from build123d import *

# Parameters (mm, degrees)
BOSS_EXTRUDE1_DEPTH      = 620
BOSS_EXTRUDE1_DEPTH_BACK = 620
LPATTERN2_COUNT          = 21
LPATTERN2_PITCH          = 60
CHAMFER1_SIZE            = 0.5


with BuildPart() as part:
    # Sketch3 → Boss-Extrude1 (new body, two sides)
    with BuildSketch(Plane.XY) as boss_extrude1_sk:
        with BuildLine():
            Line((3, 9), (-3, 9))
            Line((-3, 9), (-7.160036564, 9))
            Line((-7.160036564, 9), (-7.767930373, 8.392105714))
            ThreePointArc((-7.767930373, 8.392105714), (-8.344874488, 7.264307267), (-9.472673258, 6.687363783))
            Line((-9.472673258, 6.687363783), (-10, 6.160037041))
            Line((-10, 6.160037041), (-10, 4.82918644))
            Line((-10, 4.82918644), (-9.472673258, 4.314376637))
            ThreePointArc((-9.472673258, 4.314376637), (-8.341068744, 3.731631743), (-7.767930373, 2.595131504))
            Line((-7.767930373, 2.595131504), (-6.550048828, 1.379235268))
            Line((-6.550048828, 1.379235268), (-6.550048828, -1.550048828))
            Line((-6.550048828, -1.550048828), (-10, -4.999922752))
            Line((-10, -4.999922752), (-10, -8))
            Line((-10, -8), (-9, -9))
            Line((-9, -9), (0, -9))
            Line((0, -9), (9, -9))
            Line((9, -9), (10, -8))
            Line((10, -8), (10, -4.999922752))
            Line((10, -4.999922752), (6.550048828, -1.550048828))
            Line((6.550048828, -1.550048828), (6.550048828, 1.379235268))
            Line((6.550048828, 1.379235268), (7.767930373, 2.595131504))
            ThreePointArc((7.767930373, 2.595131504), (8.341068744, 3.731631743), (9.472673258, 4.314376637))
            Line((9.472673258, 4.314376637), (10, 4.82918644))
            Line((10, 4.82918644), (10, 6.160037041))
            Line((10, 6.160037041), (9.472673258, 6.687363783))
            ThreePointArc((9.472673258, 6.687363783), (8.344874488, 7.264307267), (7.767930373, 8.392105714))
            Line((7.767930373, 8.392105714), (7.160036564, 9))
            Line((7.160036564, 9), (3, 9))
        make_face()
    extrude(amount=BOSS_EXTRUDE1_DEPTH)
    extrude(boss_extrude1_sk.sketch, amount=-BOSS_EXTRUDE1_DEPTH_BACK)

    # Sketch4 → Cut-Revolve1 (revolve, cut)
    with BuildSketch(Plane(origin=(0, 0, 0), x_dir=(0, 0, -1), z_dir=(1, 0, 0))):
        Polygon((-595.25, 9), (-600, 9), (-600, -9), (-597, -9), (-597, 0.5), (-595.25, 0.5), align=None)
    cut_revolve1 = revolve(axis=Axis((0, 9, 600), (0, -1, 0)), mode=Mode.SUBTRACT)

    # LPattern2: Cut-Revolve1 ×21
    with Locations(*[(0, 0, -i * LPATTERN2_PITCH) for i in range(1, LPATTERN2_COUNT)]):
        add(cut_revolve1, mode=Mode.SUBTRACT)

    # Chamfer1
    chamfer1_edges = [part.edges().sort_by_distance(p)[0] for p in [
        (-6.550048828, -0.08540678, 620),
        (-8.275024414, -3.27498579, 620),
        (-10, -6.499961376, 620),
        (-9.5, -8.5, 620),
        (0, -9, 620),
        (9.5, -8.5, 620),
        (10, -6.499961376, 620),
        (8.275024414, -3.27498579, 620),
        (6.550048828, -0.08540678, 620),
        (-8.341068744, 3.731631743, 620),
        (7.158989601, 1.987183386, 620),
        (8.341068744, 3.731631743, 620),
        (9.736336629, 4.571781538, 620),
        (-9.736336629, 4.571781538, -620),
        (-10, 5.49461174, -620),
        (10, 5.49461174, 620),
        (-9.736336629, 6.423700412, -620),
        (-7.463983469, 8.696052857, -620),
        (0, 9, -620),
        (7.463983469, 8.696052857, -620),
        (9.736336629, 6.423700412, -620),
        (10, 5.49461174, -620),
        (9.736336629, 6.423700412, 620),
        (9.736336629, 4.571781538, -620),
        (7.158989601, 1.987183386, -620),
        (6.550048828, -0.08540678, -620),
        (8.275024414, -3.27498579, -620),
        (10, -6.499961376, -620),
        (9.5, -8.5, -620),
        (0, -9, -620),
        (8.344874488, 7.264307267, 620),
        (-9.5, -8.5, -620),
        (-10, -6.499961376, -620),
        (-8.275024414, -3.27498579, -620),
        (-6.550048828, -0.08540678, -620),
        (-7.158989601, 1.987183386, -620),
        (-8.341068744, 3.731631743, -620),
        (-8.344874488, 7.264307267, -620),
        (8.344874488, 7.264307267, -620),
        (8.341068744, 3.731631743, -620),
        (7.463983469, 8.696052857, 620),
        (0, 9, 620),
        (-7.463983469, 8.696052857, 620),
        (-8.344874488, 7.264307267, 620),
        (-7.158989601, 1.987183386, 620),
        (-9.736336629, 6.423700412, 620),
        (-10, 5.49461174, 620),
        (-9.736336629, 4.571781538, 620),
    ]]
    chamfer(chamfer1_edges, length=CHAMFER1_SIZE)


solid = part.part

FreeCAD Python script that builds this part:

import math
import FreeCAD as App
import Part
import Sketcher
Q = App.Units.Quantity


def edges_at(feature, points):
    """Names of the edges that pass closest to the given points."""
    edges = feature.Shape.Edges
    near = lambda p: min(range(len(edges)), key=lambda i: edges[i].distToShape(Part.Vertex(*p))[0])
    return sorted({f"Edge{near(p) + 1}" for p in points})

doc = App.newDocument("Part")
body = doc.addObject("PartDesign::Body", "Body")

sketch1 = doc.addObject("Sketcher::SketchObject", "Sketch")
body.addObject(sketch1)
sketch1.AttachmentSupport = (doc.XY_Plane, [""])
sketch1.MapMode = "FlatFace"
sketch1.addGeometry(Part.LineSegment(App.Vector(-7.2, 9, 0), App.Vector(-7.8, 8.4, 0)), False)
sketch1.addGeometry(Part.ArcOfCircle(Part.Circle(App.Vector(-9.8, 8.7, 0), App.Vector(0, 0, 1), 2.1), math.radians(-81), math.radians(-9)), False)
sketch1.addGeometry(Part.LineSegment(App.Vector(-9.5, 6.7, 0), App.Vector(-10, 6.2, 0)), False)
sketch1.addGeometry(Part.LineSegment(App.Vector(-10, 6.2, 0), App.Vector(-10, 4.8, 0)), False)
sketch1.addGeometry(Part.LineSegment(App.Vector(-10, 4.8, 0), App.Vector(-9.5, 4.3, 0)), False)
sketch1.addGeometry(Part.ArcOfCircle(Part.Circle(App.Vector(-9.8, 2.3, 0), App.Vector(0, 0, 1), 2.1), math.radians(9), math.radians(81)), False)
sketch1.addGeometry(Part.LineSegment(App.Vector(-7.8, 2.6, 0), App.Vector(-6.6, 1.4, 0)), False)
sketch1.addGeometry(Part.LineSegment(App.Vector(-6.6, 1.4, 0), App.Vector(-6.6, -1.6, 0)), False)
sketch1.addGeometry(Part.LineSegment(App.Vector(-6.6, -1.6, 0), App.Vector(-10, -5, 0)), False)
sketch1.addGeometry(Part.LineSegment(App.Vector(-10, -5, 0), App.Vector(-10, -8, 0)), False)
sketch1.addGeometry(Part.LineSegment(App.Vector(-10, -8, 0), App.Vector(-9, -9, 0)), False)
sketch1.addGeometry(Part.LineSegment(App.Vector(-9, -9, 0), App.Vector(9, -9, 0)), False)
sketch1.addGeometry(Part.LineSegment(App.Vector(9, -9, 0), App.Vector(10, -8, 0)), False)
sketch1.addGeometry(Part.LineSegment(App.Vector(10, -8, 0), App.Vector(10, -5, 0)), False)
sketch1.addGeometry(Part.LineSegment(App.Vector(10, -5, 0), App.Vector(6.6, -1.6, 0)), False)
sketch1.addGeometry(Part.LineSegment(App.Vector(6.6, -1.6, 0), App.Vector(6.6, 1.4, 0)), False)
sketch1.addGeometry(Part.LineSegment(App.Vector(6.6, 1.4, 0), App.Vector(7.8, 2.6, 0)), False)
sketch1.addGeometry(Part.ArcOfCircle(Part.Circle(App.Vector(9.8, 2.3, 0), App.Vector(0, 0, 1), 2.1), math.radians(99), math.radians(171)), False)
sketch1.addGeometry(Part.LineSegment(App.Vector(9.5, 4.3, 0), App.Vector(10, 4.8, 0)), False)
sketch1.addGeometry(Part.LineSegment(App.Vector(10, 4.8, 0), App.Vector(10, 6.2, 0)), False)
sketch1.addGeometry(Part.LineSegment(App.Vector(10, 6.2, 0), App.Vector(9.5, 6.7, 0)), False)
sketch1.addGeometry(Part.ArcOfCircle(Part.Circle(App.Vector(9.8, 8.7, 0), App.Vector(0, 0, 1), 2.1), math.radians(-171), math.radians(-99)), False)
sketch1.addGeometry(Part.LineSegment(App.Vector(7.8, 8.4, 0), App.Vector(7.2, 9, 0)), False)
sketch1.addGeometry(Part.LineSegment(App.Vector(7.2, 9, 0), App.Vector(-7.2, 9, 0)), False)
sketch1.addConstraint(Sketcher.Constraint("Coincident", 0, 2, 1, 2))
sketch1.addConstraint(Sketcher.Constraint("Coincident", 1, 1, 2, 1))
sketch1.addConstraint(Sketcher.Constraint("Coincident", 2, 2, 3, 1))
sketch1.addConstraint(Sketcher.Constraint("Coincident", 3, 2, 4, 1))
sketch1.addConstraint(Sketcher.Constraint("Coincident", 4, 2, 5, 2))
sketch1.addConstraint(Sketcher.Constraint("Coincident", 5, 1, 6, 1))
sketch1.addConstraint(Sketcher.Constraint("Coincident", 6, 2, 7, 1))
sketch1.addConstraint(Sketcher.Constraint("Coincident", 7, 2, 8, 1))
sketch1.addConstraint(Sketcher.Constraint("Coincident", 8, 2, 9, 1))
sketch1.addConstraint(Sketcher.Constraint("Coincident", 9, 2, 10, 1))
sketch1.addConstraint(Sketcher.Constraint("Coincident", 10, 2, 11, 1))
sketch1.addConstraint(Sketcher.Constraint("Coincident", 11, 2, 12, 1))
sketch1.addConstraint(Sketcher.Constraint("Coincident", 12, 2, 13, 1))
sketch1.addConstraint(Sketcher.Constraint("Coincident", 13, 2, 14, 1))
sketch1.addConstraint(Sketcher.Constraint("Coincident", 14, 2, 15, 1))
sketch1.addConstraint(Sketcher.Constraint("Coincident", 15, 2, 16, 1))
sketch1.addConstraint(Sketcher.Constraint("Coincident", 16, 2, 17, 2))
sketch1.addConstraint(Sketcher.Constraint("Coincident", 17, 1, 18, 1))
sketch1.addConstraint(Sketcher.Constraint("Coincident", 18, 2, 19, 1))
sketch1.addConstraint(Sketcher.Constraint("Coincident", 19, 2, 20, 1))
sketch1.addConstraint(Sketcher.Constraint("Coincident", 20, 2, 21, 2))
sketch1.addConstraint(Sketcher.Constraint("Coincident", 21, 1, 22, 1))
sketch1.addConstraint(Sketcher.Constraint("Coincident", 22, 2, 23, 1))
sketch1.addConstraint(Sketcher.Constraint("Coincident", 23, 2, 0, 1))
sketch1.addConstraint(Sketcher.Constraint("Vertical", 3))
sketch1.addConstraint(Sketcher.Constraint("Vertical", 7))
sketch1.addConstraint(Sketcher.Constraint("Vertical", 9))
sketch1.addConstraint(Sketcher.Constraint("Horizontal", 11))
sketch1.addConstraint(Sketcher.Constraint("Vertical", 13))
sketch1.addConstraint(Sketcher.Constraint("Vertical", 15))
sketch1.addConstraint(Sketcher.Constraint("Vertical", 19))
sketch1.addConstraint(Sketcher.Constraint("Horizontal", 23))
sketch1.addConstraint(Sketcher.Constraint("Equal", 1, 5))
sketch1.addConstraint(Sketcher.Constraint("Equal", 5, 17))
sketch1.addConstraint(Sketcher.Constraint("Equal", 17, 21))
sketch1.addConstraint(Sketcher.Constraint("Symmetric", 5, 3, 17, 3, -2))
sketch1.addConstraint(Sketcher.Constraint("Symmetric", 1, 3, 21, 3, -2))
sketch1.addConstraint(Sketcher.Constraint("Symmetric", 9, 2, 12, 2, -2))
sketch1.addConstraint(Sketcher.Constraint("Symmetric", 7, 2, 14, 2, -2))
sketch1.addConstraint(Sketcher.Constraint("Symmetric", 3, 2, 18, 2, -2))
sketch1.addConstraint(Sketcher.Constraint("Parallel", 0, 2))
sketch1.addConstraint(Sketcher.Constraint("Perpendicular", 2, 10))
sketch1.addConstraint(Sketcher.Constraint("Perpendicular", 10, 12))
sketch1.addConstraint(Sketcher.Constraint("Perpendicular", 12, 20))
sketch1.addConstraint(Sketcher.Constraint("Parallel", 20, 22))
sketch1.addConstraint(Sketcher.Constraint("Horizontal", 8, 2, 13, 2))
sketch1.addConstraint(Sketcher.Constraint("Horizontal", 6, 2, 15, 2))
sketch1.addConstraint(Sketcher.Constraint("Horizontal", 5, 1, 16, 2))
sketch1.addConstraint(Sketcher.Constraint("Horizontal", 4, 2, 17, 1))
sketch1.addConstraint(Sketcher.Constraint("Horizontal", 2, 2, 19, 2))
sketch1.addConstraint(Sketcher.Constraint("Horizontal", 1, 1, 20, 2))
sketch1.addConstraint(Sketcher.Constraint("Horizontal", 0, 2, 21, 1))
sketch1.addConstraint(Sketcher.Constraint("Vertical", 1, 1, 4, 2))
sketch1.addConstraint(Sketcher.Constraint("Vertical", 0, 2, 5, 1))
sketch1.addConstraint(Sketcher.Constraint("Vertical", 3, 2, 8, 2))
sketch1.addConstraint(Sketcher.Constraint("DistanceX", 11, 1, 11, 2, Q("18 mm")))
sketch1.addConstraint(Sketcher.Constraint("Radius", 1, Q("2.059999 mm")))
sketch1.addConstraint(Sketcher.Constraint("DistanceX", 2, 2, -1, 1, Q("10 mm")))
sketch1.addConstraint(Sketcher.Constraint("DistanceY", 9, 2, -1, 1, Q("8 mm")))
sketch1.addConstraint(Sketcher.Constraint("DistanceY", -1, 1, 22, 2, Q("9 mm")))
sketch1.addConstraint(Sketcher.Constraint("DistanceY", 3, 2, 3, 1, Q("1.330851 mm")))
sketch1.addConstraint(Sketcher.Constraint("DistanceY", 5, 3, 4, 2, Q("2.033202 mm")))
sketch1.addConstraint(Sketcher.Constraint("DistanceY", 6, 2, 2, 2, Q("4.780802 mm")))
sketch1.addConstraint(Sketcher.Constraint("DistanceY", 8, 2, 4, 2, Q("9.314299 mm")))
sketch1.addConstraint(Sketcher.Constraint("Distance", 6, Q("1.720941 mm")))
sketch1.addConstraint(Sketcher.Constraint("DistanceX", 23, 2, 23, 1, Q("14.320073 mm")))
sketch1.addConstraint(Sketcher.Constraint("DistanceY", 7, 2, 7, 1, Q("2.929284 mm")))
sketch1.addConstraint(Sketcher.Constraint("DistanceY", 9, 2, 9, 1, Q("3.000077 mm")))
sketch1.addConstraint(Sketcher.Constraint("DistanceX", 0, 2, -1, 1, Q("7.76793 mm")))
sketch1.addConstraint(Sketcher.Constraint("DistanceY", -1, 1, 5, 1, Q("2.595132 mm")))
sketch1.addConstraint(Sketcher.Constraint("DistanceX", 6, 2, -1, 1, Q("6.550049 mm")))
pad1 = doc.addObject("PartDesign::Pad", "Pad")
body.addObject(pad1)
pad1.Profile = sketch1
pad1.Type = "TwoLengths"
pad1.Length = 620
pad1.Length2 = 620

sketch2 = doc.addObject("Sketcher::SketchObject", "Sketch001")
body.addObject(sketch2)
sketch2.AttachmentSupport = (doc.YZ_Plane, [""])
sketch2.MapMode = "FlatFace"
sketch2.addGeometry(Part.LineSegment(App.Vector(9, 595.2, 0), App.Vector(9, 600, 0)), False)
sketch2.addGeometry(Part.LineSegment(App.Vector(9, 600, 0), App.Vector(-9, 600, 0)), False)
sketch2.addGeometry(Part.LineSegment(App.Vector(-9, 600, 0), App.Vector(-9, 597, 0)), False)
sketch2.addGeometry(Part.LineSegment(App.Vector(-9, 597, 0), App.Vector(0.5, 597, 0)), False)
sketch2.addGeometry(Part.LineSegment(App.Vector(0.5, 597, 0), App.Vector(0.5, 595.2, 0)), False)
sketch2.addGeometry(Part.LineSegment(App.Vector(0.5, 595.2, 0), App.Vector(9, 595.2, 0)), False)
sketch2.addGeometry(Part.LineSegment(App.Vector(9, 600, 0), App.Vector(-9, 600, 0)), True)
sketch2.addConstraint(Sketcher.Constraint("Coincident", 0, 2, 1, 1))
sketch2.addConstraint(Sketcher.Constraint("Coincident", 1, 2, 2, 1))
sketch2.addConstraint(Sketcher.Constraint("Coincident", 2, 2, 3, 1))
sketch2.addConstraint(Sketcher.Constraint("Coincident", 3, 2, 4, 1))
sketch2.addConstraint(Sketcher.Constraint("Coincident", 4, 2, 5, 1))
sketch2.addConstraint(Sketcher.Constraint("Coincident", 5, 2, 0, 1))
sketch2.addConstraint(Sketcher.Constraint("Vertical", 0))
sketch2.addConstraint(Sketcher.Constraint("Horizontal", 1))
sketch2.addConstraint(Sketcher.Constraint("Vertical", 2))
sketch2.addConstraint(Sketcher.Constraint("Horizontal", 3))
sketch2.addConstraint(Sketcher.Constraint("Vertical", 4))
sketch2.addConstraint(Sketcher.Constraint("Horizontal", 5))
sketch2.addConstraint(Sketcher.Constraint("Horizontal", 6))
sketch2.addConstraint(Sketcher.Constraint("Coincident", 6, 1, 0, 2))
sketch2.addConstraint(Sketcher.Constraint("Vertical", 2, 2, 6, 2))
sketch2.addConstraint(Sketcher.Constraint("DistanceX", 1, 2, 1, 1, Q("18 mm")))
sketch2.addConstraint(Sketcher.Constraint("DistanceY", 2, 2, 2, 1, Q("3 mm")))
sketch2.addConstraint(Sketcher.Constraint("DistanceX", 3, 1, 3, 2, Q("9.5 mm")))
sketch2.addConstraint(Sketcher.Constraint("DistanceX", -1, 1, 0, 2, Q("9 mm")))
sketch2.addConstraint(Sketcher.Constraint("DistanceY", -1, 1, 0, 2, Q("600 mm")))
sketch2.addConstraint(Sketcher.Constraint("DistanceY", 0, 1, 0, 2, Q("4.75 mm")))
groove = doc.addObject("PartDesign::Groove", "Groove")
body.addObject(groove)
groove.Profile = sketch2
groove.ReferenceAxis = (sketch2, ["Axis0"])
groove.Angle = 360
doc.recompute()

linearpattern = doc.addObject("PartDesign::LinearPattern", "LinearPattern")
body.addObject(linearpattern)
linearpattern.Originals = [groove]
linearpattern.Direction = (doc.Z_Axis, [""])
linearpattern.Mode = "offset"
linearpattern.Offset = 60
linearpattern.Occurrences = 21
linearpattern.Reversed = True
body.Tip = linearpattern
doc.recompute()

chamfer = doc.addObject("PartDesign::Chamfer", "Chamfer")
body.addObject(chamfer)
chamfer.Base = (linearpattern, edges_at(linearpattern, [
    (-6.55, -0.085, 620),
    (-8.275, -3.275, 620),
    (-10, -6.5, 620),
    (-9.5, -8.5, 620),
    (0, -9, 620),
    (9.5, -8.5, 620),
    (10, -6.5, 620),
    (8.275, -3.275, 620),
    (6.55, -0.085, 620),
    (-8.341, 3.732, 620),
    (7.159, 1.987, 620),
    (8.341, 3.732, 620),
    (9.736, 4.572, 620),
    (-9.736, 4.572, -620),
    (-10, 5.495, -620),
    (10, 5.495, 620),
    (-9.736, 6.424, -620),
    (-7.464, 8.696, -620),
    (0, 9, -620),
    (7.464, 8.696, -620),
    (9.736, 6.424, -620),
    (10, 5.495, -620),
    (9.736, 6.424, 620),
    (9.736, 4.572, -620),
    (7.159, 1.987, -620),
    (6.55, -0.085, -620),
    (8.275, -3.275, -620),
    (10, -6.5, -620),
    (9.5, -8.5, -620),
    (0, -9, -620),
    (8.345, 7.264, 620),
    (-9.5, -8.5, -620),
    (-10, -6.5, -620),
    (-8.275, -3.275, -620),
    (-6.55, -0.085, -620),
    (-7.159, 1.987, -620),
    (-8.341, 3.732, -620),
    (-8.345, 7.264, -620),
    (8.345, 7.264, -620),
    (8.341, 3.732, -620),
    (7.464, 8.696, 620),
    (0, 9, 620),
    (-7.464, 8.696, 620),
    (-8.345, 7.264, 620),
    (-7.159, 1.987, 620),
    (-9.736, 6.424, 620),
    (-10, 5.495, 620),
    (-9.736, 4.572, 620),
]))
chamfer.Size = 0.5

doc.recompute()
